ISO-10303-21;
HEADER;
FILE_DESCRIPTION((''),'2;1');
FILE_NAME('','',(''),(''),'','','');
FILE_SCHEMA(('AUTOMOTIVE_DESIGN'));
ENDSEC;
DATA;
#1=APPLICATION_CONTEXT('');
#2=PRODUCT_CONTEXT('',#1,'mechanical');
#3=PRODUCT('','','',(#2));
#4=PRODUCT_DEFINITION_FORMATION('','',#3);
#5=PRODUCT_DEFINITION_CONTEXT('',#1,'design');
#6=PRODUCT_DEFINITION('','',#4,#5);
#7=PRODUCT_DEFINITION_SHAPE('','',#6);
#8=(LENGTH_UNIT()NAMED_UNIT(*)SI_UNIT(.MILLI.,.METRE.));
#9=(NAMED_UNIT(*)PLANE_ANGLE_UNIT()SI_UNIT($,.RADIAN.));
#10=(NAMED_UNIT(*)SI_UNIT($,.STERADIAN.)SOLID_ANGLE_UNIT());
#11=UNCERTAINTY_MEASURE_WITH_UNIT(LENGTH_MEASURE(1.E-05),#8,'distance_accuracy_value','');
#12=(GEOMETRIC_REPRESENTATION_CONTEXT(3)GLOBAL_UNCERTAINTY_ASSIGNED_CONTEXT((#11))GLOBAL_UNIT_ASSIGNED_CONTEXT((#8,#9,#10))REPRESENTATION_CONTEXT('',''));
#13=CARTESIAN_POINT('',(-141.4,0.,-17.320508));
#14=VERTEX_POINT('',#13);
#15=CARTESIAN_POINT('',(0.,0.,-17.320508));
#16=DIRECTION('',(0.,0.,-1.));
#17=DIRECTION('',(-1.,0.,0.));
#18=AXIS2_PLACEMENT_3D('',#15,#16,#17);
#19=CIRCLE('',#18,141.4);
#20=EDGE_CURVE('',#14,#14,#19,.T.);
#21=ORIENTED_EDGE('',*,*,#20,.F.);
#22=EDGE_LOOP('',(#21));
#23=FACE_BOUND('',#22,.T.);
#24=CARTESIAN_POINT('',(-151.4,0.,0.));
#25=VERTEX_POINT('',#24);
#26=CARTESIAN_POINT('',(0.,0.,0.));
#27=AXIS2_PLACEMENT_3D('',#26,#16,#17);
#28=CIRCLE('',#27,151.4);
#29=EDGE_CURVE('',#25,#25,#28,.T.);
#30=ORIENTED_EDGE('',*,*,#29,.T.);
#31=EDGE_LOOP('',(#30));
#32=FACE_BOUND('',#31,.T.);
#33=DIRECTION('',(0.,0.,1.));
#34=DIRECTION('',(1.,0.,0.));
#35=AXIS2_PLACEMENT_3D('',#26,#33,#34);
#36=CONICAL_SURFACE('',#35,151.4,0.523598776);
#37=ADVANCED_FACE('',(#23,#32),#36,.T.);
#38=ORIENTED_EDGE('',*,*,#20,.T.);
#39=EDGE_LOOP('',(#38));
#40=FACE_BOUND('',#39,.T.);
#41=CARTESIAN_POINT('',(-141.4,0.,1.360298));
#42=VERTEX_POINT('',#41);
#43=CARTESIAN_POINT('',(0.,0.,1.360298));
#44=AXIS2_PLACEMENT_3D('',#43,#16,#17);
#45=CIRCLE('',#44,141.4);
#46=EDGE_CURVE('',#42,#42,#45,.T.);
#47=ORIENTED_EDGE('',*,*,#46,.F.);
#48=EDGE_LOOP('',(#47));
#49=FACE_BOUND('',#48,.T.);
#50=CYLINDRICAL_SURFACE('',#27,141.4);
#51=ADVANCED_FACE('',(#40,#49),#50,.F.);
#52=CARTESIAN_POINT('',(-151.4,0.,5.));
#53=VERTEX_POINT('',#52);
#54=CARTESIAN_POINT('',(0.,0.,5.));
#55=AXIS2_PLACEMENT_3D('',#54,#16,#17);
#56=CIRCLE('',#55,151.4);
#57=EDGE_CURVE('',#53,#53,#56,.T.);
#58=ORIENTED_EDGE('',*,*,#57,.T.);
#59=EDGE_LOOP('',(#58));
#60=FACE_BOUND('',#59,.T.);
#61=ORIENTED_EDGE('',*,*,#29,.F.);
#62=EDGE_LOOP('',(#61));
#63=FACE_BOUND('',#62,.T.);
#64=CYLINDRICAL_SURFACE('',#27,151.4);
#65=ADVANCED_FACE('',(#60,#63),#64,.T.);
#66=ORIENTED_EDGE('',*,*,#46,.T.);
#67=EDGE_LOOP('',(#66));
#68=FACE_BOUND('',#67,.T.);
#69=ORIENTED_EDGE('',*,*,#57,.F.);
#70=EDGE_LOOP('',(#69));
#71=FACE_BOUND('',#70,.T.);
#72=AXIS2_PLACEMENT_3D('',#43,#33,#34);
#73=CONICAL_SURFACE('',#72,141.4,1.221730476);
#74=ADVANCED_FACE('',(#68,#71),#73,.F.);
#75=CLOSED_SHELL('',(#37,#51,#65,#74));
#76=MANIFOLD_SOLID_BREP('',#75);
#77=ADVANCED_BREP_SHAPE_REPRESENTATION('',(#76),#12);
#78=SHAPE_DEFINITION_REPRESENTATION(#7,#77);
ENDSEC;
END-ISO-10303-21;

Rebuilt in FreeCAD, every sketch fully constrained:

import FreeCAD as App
import Part
import Sketcher

V = App.Vector
Q = App.Units.Quantity


def add_polygon(sketch, points):
    """Adds a closed chain of lines whose ends are joined by coincident constraints."""
    first, n = sketch.GeometryCount, len(points)
    for a, b in zip(points, points[1:] + points[:1]):
        sketch.addGeometry(Part.LineSegment(App.Vector(*a, 0), App.Vector(*b, 0)), False)
    for i in range(n):
        sketch.addConstraint(Sketcher.Constraint("Coincident", first + i, 2, first + (i + 1) % n, 1))

doc = App.newDocument("Part")
body = doc.addObject("PartDesign::Body", "Body")

sketch1 = body.newObject("Sketcher::SketchObject", "Sketch")
sketch1.AttachmentSupport = (doc.getObject("YZ_Plane"), [""])
sketch1.MapMode = "FlatFace"
add_polygon(sketch1, [(-141.4, 1.360298), (-151.4, 5), (-151.4, 0), (-141.4, -17.320508)])
sketch1.addConstraint(Sketcher.Constraint("Vertical", 1))
sketch1.addConstraint(Sketcher.Constraint("Vertical", 3))
sketch1.addConstraint(Sketcher.Constraint("PointOnObject", 1, 2, -1))
sketch1.addConstraint(Sketcher.Constraint("DistanceY", 1, 2, 1, 1, 5.0))
sketch1.addConstraint(Sketcher.Constraint("Angle", 0, Q("160 deg")))
sketch1.addConstraint(Sketcher.Constraint("Angle", 2, Q("-60 deg")))
sketch1.addConstraint(Sketcher.Constraint("Distance", 2, 20.0))
sketch1.addConstraint(Sketcher.Constraint("DistanceX", 0, 2, -1, 1, 151.4))
revolution = body.newObject("PartDesign::Revolution", "Revolution")
revolution.Profile = sketch1
revolution.ReferenceAxis = (sketch1, ["V_Axis"])
revolution.Angle = 360

doc.recompute()
